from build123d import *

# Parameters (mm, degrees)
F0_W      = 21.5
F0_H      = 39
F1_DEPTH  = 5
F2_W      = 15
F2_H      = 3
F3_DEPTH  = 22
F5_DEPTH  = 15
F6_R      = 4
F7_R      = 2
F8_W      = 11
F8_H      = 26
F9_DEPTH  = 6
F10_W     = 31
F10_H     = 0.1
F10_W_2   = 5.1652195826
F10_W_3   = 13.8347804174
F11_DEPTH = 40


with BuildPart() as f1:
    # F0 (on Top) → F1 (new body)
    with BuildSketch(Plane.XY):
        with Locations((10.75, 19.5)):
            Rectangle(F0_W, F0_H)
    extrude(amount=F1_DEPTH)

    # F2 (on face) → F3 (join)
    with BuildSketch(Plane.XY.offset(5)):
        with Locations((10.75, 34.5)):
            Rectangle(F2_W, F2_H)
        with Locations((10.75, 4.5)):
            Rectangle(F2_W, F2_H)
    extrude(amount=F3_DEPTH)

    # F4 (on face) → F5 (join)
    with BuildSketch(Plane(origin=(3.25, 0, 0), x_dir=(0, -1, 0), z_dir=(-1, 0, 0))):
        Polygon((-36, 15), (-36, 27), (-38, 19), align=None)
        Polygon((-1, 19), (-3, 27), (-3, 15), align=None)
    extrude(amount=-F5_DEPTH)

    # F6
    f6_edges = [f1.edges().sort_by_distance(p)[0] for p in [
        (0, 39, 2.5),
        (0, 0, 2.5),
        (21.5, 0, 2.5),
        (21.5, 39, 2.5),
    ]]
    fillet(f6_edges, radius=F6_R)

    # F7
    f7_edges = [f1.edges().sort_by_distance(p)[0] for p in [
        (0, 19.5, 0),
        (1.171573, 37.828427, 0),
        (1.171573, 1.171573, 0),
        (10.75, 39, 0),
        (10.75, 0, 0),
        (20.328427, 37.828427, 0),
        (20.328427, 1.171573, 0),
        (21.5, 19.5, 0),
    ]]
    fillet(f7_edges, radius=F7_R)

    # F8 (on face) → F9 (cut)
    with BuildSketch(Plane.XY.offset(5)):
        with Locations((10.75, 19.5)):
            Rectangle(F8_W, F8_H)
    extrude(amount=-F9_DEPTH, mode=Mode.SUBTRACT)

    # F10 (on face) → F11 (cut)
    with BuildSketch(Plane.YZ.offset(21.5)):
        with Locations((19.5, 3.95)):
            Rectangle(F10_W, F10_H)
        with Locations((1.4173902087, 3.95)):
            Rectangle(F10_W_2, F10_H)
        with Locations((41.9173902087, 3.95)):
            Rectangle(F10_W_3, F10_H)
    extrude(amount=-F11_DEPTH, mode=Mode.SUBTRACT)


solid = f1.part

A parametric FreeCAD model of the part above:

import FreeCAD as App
import Part
import Sketcher
from FreeCAD import Vector


def edges_at(feature, points):
    """Names of the edges that pass closest to the given points."""
    edges = feature.Shape.Edges
    near = lambda p: min(range(len(edges)), key=lambda i: edges[i].distToShape(Part.Vertex(*p))[0])
    return sorted({f"Edge{near(p) + 1}" for p in points})

doc = App.newDocument("Part")
params = doc.addObject("Spreadsheet::Sheet", "Params")
for row, (alias, value) in enumerate([
    ("sketch1_height", "39 mm"),
    ("sketch1_width", "21.5 mm"),
    ("pad1_length", "5 mm"),
    ("sketch2_width", "15 mm"),
    ("sketch2_height", "3 mm"),
    ("pad2_length", "22 mm"),
    ("sketch3_height", "12 mm"),
    ("pad3_length", "15 mm"),
    ("fillet_radius", "4 mm"),
    ("fillet2_radius", "2 mm"),
    ("sketch4_width", "11 mm"),
    ("sketch4_height", "26 mm"),
    ("pocket1_length", "6 mm"),
    ("sketch5_width", "50 mm"),
    ("sketch5_height", "0.1 mm"),
    ("pocket2_length", "40 mm"),
], start=1):
    params.set(f"A{row}", alias)
    params.set(f"B{row}", "=" + value)
    params.setAlias(f"B{row}", alias)

body = doc.addObject("PartDesign::Body", "Body")
body.AllowCompound = True

sketch1 = body.newObject("Sketcher::SketchObject", "Sketch")
sketch1.AttachmentSupport = (doc.getObject("XY_Plane"), [""])
sketch1.MapMode = "FlatFace"
sketch1.addGeometry(Part.LineSegment(Vector(0, 39, 0), Vector(0, 0, 0)), False)
sketch1.addGeometry(Part.LineSegment(Vector(0, 0, 0), Vector(22, 0, 0)), False)
sketch1.addGeometry(Part.LineSegment(Vector(22, 0, 0), Vector(22, 39, 0)), False)
sketch1.addGeometry(Part.LineSegment(Vector(22, 39, 0), Vector(0, 39, 0)), False)
sketch1.addConstraint(Sketcher.Constraint("Coincident", 0, 2, 1, 1))
sketch1.addConstraint(Sketcher.Constraint("Coincident", 1, 2, 2, 1))
sketch1.addConstraint(Sketcher.Constraint("Coincident", 2, 2, 3, 1))
sketch1.addConstraint(Sketcher.Constraint("Coincident", 3, 2, 0, 1))
sketch1.addConstraint(Sketcher.Constraint("Vertical", 0))
sketch1.addConstraint(Sketcher.Constraint("Horizontal", 1))
sketch1.addConstraint(Sketcher.Constraint("Vertical", 2))
sketch1.addConstraint(Sketcher.Constraint("Horizontal", 3))
sketch1.addConstraint(Sketcher.Constraint("Coincident", 0, 2, -1, 1))
sketch1.addConstraint(Sketcher.Constraint("DistanceY", 0, 2, 0, 1, 39.0))
sketch1.addConstraint(Sketcher.Constraint("DistanceX", 1, 1, 1, 2, 21.5))
sketch1.setExpression("Constraints[9]", "Params.sketch1_height")
sketch1.setExpression("Constraints[10]", "Params.sketch1_width")
pad1 = body.newObject("PartDesign::Pad", "Pad")
pad1.Profile = sketch1
pad1.setExpression("Length", "Params.pad1_length")

sketch2 = body.newObject("Sketcher::SketchObject", "Sketch001")
sketch2.AttachmentSupport = (doc.getObject("XY_Plane"), [""])
sketch2.MapMode = "FlatFace"
sketch2.AttachmentOffset = App.Placement(Vector(0, 0, 5), App.Rotation())
sketch2.addGeometry(Part.LineSegment(Vector(3.2, 36, 0), Vector(3.2, 33, 0)), False)
sketch2.addGeometry(Part.LineSegment(Vector(3.2, 33, 0), Vector(18.2, 33, 0)), False)
sketch2.addGeometry(Part.LineSegment(Vector(18.2, 33, 0), Vector(18.2, 36, 0)), False)
sketch2.addGeometry(Part.LineSegment(Vector(18.2, 36, 0), Vector(3.2, 36, 0)), False)
sketch2.addGeometry(Part.LineSegment(Vector(3.2, 6, 0), Vector(3.2, 3, 0)), False)
sketch2.addGeometry(Part.LineSegment(Vector(3.2, 3, 0), Vector(18.2, 3, 0)), False)
sketch2.addGeometry(Part.LineSegment(Vector(18.2, 3, 0), Vector(18.2, 6, 0)), False)
sketch2.addGeometry(Part.LineSegment(Vector(18.2, 6, 0), Vector(3.2, 6, 0)), False)
sketch2.addConstraint(Sketcher.Constraint("Coincident", 0, 2, 1, 1))
sketch2.addConstraint(Sketcher.Constraint("Coincident", 1, 2, 2, 1))
sketch2.addConstraint(Sketcher.Constraint("Coincident", 2, 2, 3, 1))
sketch2.addConstraint(Sketcher.Constraint("Coincident", 3, 2, 0, 1))
sketch2.addConstraint(Sketcher.Constraint("Coincident", 4, 2, 5, 1))
sketch2.addConstraint(Sketcher.Constraint("Coincident", 5, 2, 6, 1))
sketch2.addConstraint(Sketcher.Constraint("Coincident", 6, 2, 7, 1))
sketch2.addConstraint(Sketcher.Constraint("Coincident", 7, 2, 4, 1))
sketch2.addConstraint(Sketcher.Constraint("Vertical", 0))
sketch2.addConstraint(Sketcher.Constraint("Horizontal", 1))
sketch2.addConstraint(Sketcher.Constraint("Vertical", 2))
sketch2.addConstraint(Sketcher.Constraint("Horizontal", 3))
sketch2.addConstraint(Sketcher.Constraint("Vertical", 4))
sketch2.addConstraint(Sketcher.Constraint("Horizontal", 5))
sketch2.addConstraint(Sketcher.Constraint("Vertical", 6))
sketch2.addConstraint(Sketcher.Constraint("Horizontal", 7))
sketch2.addConstraint(Sketcher.Constraint("Vertical", 3, 2, 4, 2))
sketch2.addConstraint(Sketcher.Constraint("Vertical", 2, 2, 5, 2))
sketch2.addConstraint(Sketcher.Constraint("Equal", 2, 4))
sketch2.addConstraint(Sketcher.Constraint("DistanceX", 1, 1, 1, 2, 15.0))
sketch2.addConstraint(Sketcher.Constraint("DistanceY", 0, 2, 0, 1, 3.0))
sketch2.addConstraint(Sketcher.Constraint("DistanceY", -1, 1, 0, 2, 33.0))
sketch2.addConstraint(Sketcher.Constraint("DistanceY", -1, 1, 4, 2, 3.0))
sketch2.addConstraint(Sketcher.Constraint("DistanceX", -1, 1, 0, 2, 3.25))
sketch2.setExpression("Constraints[19]", "Params.sketch2_width")
sketch2.setExpression("Constraints[20]", "Params.sketch2_height")
pad2 = body.newObject("PartDesign::Pad", "Pad001")
pad2.Profile = sketch2
pad2.setExpression("Length", "Params.pad2_length")

sketch3 = body.newObject("Sketcher::SketchObject", "Sketch002")
sketch3.AttachmentSupport = (doc.getObject("YZ_Plane"), [""])
sketch3.MapMode = "FlatFace"
sketch3.AttachmentOffset = App.Placement(Vector(0, 0, 3.25), App.Rotation())
sketch3.addGeometry(Part.LineSegment(Vector(36, 15, 0), Vector(36, 27, 0)), False)
sketch3.addGeometry(Part.LineSegment(Vector(36, 27, 0), Vector(38, 19, 0)), False)
sketch3.addGeometry(Part.LineSegment(Vector(38, 19, 0), Vector(36, 15, 0)), False)
sketch3.addGeometry(Part.LineSegment(Vector(1, 19, 0), Vector(3, 27, 0)), False)
sketch3.addGeometry(Part.LineSegment(Vector(3, 27, 0), Vector(3, 15, 0)), False)
sketch3.addGeometry(Part.LineSegment(Vector(3, 15, 0), Vector(1, 19, 0)), False)
sketch3.addConstraint(Sketcher.Constraint("Coincident", 0, 2, 1, 1))
sketch3.addConstraint(Sketcher.Constraint("Coincident", 1, 2, 2, 1))
sketch3.addConstraint(Sketcher.Constraint("Coincident", 2, 2, 0, 1))
sketch3.addConstraint(Sketcher.Constraint("Coincident", 3, 2, 4, 1))
sketch3.addConstraint(Sketcher.Constraint("Coincident", 4, 2, 5, 1))
sketch3.addConstraint(Sketcher.Constraint("Coincident", 5, 2, 3, 1))
sketch3.addConstraint(Sketcher.Constraint("Vertical", 0))
sketch3.addConstraint(Sketcher.Constraint("Vertical", 4))
sketch3.addConstraint(Sketcher.Constraint("Horizontal", 0, 2, 3, 2))
sketch3.addConstraint(Sketcher.Constraint("Horizontal", 2, 2, 4, 2))
sketch3.addConstraint(Sketcher.Constraint("Horizontal", 1, 2, 5, 2))
sketch3.addConstraint(Sketcher.Constraint("Equal", 1, 3))
sketch3.addConstraint(Sketcher.Constraint("DistanceY", 0, 1, 0, 2, 12.0))
sketch3.addConstraint(Sketcher.Constraint("DistanceX", -1, 1, 0, 2, 36.0))
sketch3.addConstraint(Sketcher.Constraint("DistanceY", -1, 1, 0, 2, 27.0))
sketch3.addConstraint(Sketcher.Constraint("DistanceX", -1, 1, 1, 2, 38.0))
sketch3.addConstraint(Sketcher.Constraint("DistanceY", -1, 1, 1, 2, 19.0))
sketch3.addConstraint(Sketcher.Constraint("DistanceX", -1, 1, 3, 2, 3.0))
sketch3.setExpression("Constraints[12]", "Params.sketch3_height")
pad3 = body.newObject("PartDesign::Pad", "Pad002")
pad3.Profile = sketch3
pad3.setExpression("Length", "Params.pad3_length")
doc.recompute()

fillet = body.newObject("PartDesign::Fillet", "Fillet")
fillet.Base = (pad3, edges_at(pad3, [
    (0, 39, 2.5),
    (0, 0, 2.5),
    (21.5, 0, 2.5),
    (21.5, 39, 2.5),
]))
fillet.setExpression("Radius", "Params.fillet_radius")
doc.recompute()

fillet2 = body.newObject("PartDesign::Fillet", "Fillet001")
fillet2.Base = (fillet, edges_at(fillet, [
    (0, 19.5, 0),
    (1.172, 37.828, 0),
    (1.172, 1.172, 0),
    (10.75, 39, 0),
    (10.75, 0, 0),
    (20.328, 37.828, 0),
    (20.328, 1.172, 0),
    (21.5, 19.5, 0),
]))
fillet2.setExpression("Radius", "Params.fillet2_radius")

sketch4 = body.newObject("Sketcher::SketchObject", "Sketch003")
sketch4.AttachmentSupport = (doc.getObject("XY_Plane"), [""])
sketch4.MapMode = "FlatFace"
sketch4.AttachmentOffset = App.Placement(Vector(0, 0, 5), App.Rotation())
sketch4.addGeometry(Part.LineSegment(Vector(5, 32, 0), Vector(5, 6, 0)), False)
sketch4.addGeometry(Part.LineSegment(Vector(5, 6, 0), Vector(16, 6, 0)), False)
sketch4.addGeometry(Part.LineSegment(Vector(16, 6, 0), Vector(16, 32, 0)), False)
sketch4.addGeometry(Part.LineSegment(Vector(16, 32, 0), Vector(5, 32, 0)), False)
sketch4.addConstraint(Sketcher.Constraint("Coincident", 0, 2, 1, 1))
sketch4.addConstraint(Sketcher.Constraint("Coincident", 1, 2, 2, 1))
sketch4.addConstraint(Sketcher.Constraint("Coincident", 2, 2, 3, 1))
sketch4.addConstraint(Sketcher.Constraint("Coincident", 3, 2, 0, 1))
sketch4.addConstraint(Sketcher.Constraint("Vertical", 0))
sketch4.addConstraint(Sketcher.Constraint("Horizontal", 1))
sketch4.addConstraint(Sketcher.Constraint("Vertical", 2))
sketch4.addConstraint(Sketcher.Constraint("Horizontal", 3))
sketch4.addConstraint(Sketcher.Constraint("DistanceX", 1, 1, 1, 2, 11.0))
sketch4.addConstraint(Sketcher.Constraint("DistanceY", 0, 2, 0, 1, 26.0))
sketch4.addConstraint(Sketcher.Constraint("DistanceY", -1, 1, 0, 2, 6.5))
sketch4.addConstraint(Sketcher.Constraint("DistanceX", -1, 1, 0, 2, 5.25))
sketch4.setExpression("Constraints[8]", "Params.sketch4_width")
sketch4.setExpression("Constraints[9]", "Params.sketch4_height")
pocket1 = body.newObject("PartDesign::Pocket", "Pocket")
pocket1.Profile = sketch4
pocket1.setExpression("Length", "Params.pocket1_length")

sketch5 = body.newObject("Sketcher::SketchObject", "Sketch004")
sketch5.AttachmentSupport = (doc.getObject("YZ_Plane"), [""])
sketch5.MapMode = "FlatFace"
sketch5.AttachmentOffset = App.Placement(Vector(0, 0, 21.5), App.Rotation())
sketch5.addGeometry(Part.LineSegment(Vector(-1.17, 4, 0), Vector(-1.17, 3.9, 0)), False)
sketch5.addGeometry(Part.LineSegment(Vector(-1.17, 3.9, 0), Vector(48.83, 3.9, 0)), False)
sketch5.addGeometry(Part.LineSegment(Vector(48.83, 3.9, 0), Vector(48.83, 4, 0)), False)
sketch5.addGeometry(Part.LineSegment(Vector(48.83, 4, 0), Vector(-1.17, 4, 0)), False)
sketch5.addConstraint(Sketcher.Constraint("Coincident", 0, 2, 1, 1))
sketch5.addConstraint(Sketcher.Constraint("Coincident", 1, 2, 2, 1))
sketch5.addConstraint(Sketcher.Constraint("Coincident", 2, 2, 3, 1))
sketch5.addConstraint(Sketcher.Constraint("Coincident", 3, 2, 0, 1))
sketch5.addConstraint(Sketcher.Constraint("Vertical", 0))
sketch5.addConstraint(Sketcher.Constraint("Horizontal", 1))
sketch5.addConstraint(Sketcher.Constraint("Vertical", 2))
sketch5.addConstraint(Sketcher.Constraint("Horizontal", 3))
sketch5.addConstraint(Sketcher.Constraint("DistanceX", 1, 1, 1, 2, 50.0))
sketch5.addConstraint(Sketcher.Constraint("DistanceY", 0, 2, 0, 1, 0.1))
sketch5.addConstraint(Sketcher.Constraint("DistanceY", -1, 1, 2, 2, 4.0))
sketch5.addConstraint(Sketcher.Constraint("DistanceX", 0, 2, -1, 1, 1.16522))
sketch5.setExpression("Constraints[8]", "Params.sketch5_width")
sketch5.setExpression("Constraints[9]", "Params.sketch5_height")
pocket2 = body.newObject("PartDesign::Pocket", "Pocket001")
pocket2.Profile = sketch5
pocket2.setExpression("Length", "Params.pocket2_length")

doc.recompute()
